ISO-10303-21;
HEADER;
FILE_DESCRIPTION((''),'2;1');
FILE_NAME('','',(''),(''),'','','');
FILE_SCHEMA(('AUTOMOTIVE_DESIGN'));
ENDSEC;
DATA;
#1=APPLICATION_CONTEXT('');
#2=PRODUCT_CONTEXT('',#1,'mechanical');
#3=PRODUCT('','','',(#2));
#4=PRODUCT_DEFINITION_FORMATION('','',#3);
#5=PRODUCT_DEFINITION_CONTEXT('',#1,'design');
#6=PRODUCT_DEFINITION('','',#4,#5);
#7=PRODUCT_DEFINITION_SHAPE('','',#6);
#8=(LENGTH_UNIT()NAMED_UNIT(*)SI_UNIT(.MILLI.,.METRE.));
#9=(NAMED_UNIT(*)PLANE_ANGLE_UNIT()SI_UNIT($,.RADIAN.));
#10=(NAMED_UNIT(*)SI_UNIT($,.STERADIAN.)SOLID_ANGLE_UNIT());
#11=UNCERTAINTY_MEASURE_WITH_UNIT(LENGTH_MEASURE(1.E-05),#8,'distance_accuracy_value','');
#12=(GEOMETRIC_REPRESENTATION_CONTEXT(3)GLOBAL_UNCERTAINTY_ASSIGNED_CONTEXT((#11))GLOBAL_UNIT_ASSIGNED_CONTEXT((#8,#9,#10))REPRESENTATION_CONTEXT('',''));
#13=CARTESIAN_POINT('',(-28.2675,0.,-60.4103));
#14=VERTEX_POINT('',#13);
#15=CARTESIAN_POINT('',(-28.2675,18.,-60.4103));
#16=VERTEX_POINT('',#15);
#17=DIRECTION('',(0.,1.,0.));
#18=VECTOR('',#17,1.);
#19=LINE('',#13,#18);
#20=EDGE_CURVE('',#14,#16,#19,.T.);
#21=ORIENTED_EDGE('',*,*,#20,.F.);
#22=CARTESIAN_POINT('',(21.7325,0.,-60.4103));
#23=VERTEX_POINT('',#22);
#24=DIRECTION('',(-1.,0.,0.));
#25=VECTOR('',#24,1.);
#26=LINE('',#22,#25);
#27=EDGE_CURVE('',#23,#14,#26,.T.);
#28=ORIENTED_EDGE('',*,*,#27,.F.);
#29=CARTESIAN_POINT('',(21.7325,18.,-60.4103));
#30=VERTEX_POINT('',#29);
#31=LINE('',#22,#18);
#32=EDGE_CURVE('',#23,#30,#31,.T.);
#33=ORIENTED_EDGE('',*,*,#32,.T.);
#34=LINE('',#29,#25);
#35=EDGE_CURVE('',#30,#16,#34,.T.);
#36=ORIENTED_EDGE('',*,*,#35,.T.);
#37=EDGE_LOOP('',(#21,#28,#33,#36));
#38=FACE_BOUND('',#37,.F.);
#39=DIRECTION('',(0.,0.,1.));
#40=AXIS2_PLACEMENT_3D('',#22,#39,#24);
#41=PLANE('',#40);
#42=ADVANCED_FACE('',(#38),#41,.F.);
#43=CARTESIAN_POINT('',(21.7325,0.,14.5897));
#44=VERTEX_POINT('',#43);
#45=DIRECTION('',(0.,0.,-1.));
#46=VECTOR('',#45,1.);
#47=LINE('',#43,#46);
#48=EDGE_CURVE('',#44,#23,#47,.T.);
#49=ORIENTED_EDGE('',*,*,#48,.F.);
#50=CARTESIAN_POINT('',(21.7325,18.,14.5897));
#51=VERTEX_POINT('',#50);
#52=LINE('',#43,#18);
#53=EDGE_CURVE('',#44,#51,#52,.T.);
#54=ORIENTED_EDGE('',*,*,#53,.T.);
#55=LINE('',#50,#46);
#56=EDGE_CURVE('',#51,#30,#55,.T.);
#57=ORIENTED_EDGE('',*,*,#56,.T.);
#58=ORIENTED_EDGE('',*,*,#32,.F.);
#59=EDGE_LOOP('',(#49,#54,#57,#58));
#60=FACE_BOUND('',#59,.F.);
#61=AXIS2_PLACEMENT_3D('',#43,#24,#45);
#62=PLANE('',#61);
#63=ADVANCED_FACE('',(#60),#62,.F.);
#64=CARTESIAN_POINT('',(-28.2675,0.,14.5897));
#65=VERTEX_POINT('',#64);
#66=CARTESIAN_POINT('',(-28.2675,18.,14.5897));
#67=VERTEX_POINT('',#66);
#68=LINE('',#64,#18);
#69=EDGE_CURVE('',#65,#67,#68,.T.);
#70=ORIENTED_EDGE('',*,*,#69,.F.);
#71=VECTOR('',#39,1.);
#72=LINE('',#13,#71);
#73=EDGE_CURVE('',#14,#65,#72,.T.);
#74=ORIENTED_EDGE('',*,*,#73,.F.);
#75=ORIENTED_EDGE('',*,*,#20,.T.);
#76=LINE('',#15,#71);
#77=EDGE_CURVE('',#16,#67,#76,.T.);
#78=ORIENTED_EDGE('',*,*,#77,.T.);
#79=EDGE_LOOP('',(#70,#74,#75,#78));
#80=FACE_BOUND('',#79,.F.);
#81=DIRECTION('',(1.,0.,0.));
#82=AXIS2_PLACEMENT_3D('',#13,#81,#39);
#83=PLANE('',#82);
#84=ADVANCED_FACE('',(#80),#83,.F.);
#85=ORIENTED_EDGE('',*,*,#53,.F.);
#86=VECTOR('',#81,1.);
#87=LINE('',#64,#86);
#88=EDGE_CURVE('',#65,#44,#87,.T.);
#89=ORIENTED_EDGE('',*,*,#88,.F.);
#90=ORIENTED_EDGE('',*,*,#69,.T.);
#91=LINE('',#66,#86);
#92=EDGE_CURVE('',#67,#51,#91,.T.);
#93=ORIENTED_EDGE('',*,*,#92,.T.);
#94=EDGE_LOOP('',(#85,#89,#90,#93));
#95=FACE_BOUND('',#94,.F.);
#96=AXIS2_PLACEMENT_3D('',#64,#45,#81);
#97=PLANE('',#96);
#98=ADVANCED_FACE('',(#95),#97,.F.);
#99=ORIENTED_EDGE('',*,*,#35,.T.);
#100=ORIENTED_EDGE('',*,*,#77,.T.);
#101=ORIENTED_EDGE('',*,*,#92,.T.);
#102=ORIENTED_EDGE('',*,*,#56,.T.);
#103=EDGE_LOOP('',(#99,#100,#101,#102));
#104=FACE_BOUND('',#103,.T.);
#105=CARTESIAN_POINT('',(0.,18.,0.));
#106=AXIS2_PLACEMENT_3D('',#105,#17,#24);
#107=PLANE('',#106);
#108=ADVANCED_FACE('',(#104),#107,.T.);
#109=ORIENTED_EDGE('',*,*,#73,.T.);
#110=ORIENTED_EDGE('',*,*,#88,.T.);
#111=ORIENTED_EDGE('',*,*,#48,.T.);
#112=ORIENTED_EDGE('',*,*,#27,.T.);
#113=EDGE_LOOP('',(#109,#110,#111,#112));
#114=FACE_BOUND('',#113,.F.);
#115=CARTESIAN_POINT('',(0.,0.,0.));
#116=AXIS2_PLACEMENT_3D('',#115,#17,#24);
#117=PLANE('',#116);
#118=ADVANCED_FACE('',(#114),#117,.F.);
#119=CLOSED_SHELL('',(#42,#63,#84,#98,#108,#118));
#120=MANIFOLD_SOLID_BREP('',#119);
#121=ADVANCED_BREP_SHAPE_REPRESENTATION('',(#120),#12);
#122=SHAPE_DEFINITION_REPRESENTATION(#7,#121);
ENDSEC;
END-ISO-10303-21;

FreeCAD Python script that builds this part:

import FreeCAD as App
import Part
import Sketcher
Q = App.Units.Quantity


def add_polygon(sketch, points):
    """Adds a closed chain of lines whose ends are joined by coincident constraints."""
    first, n = sketch.GeometryCount, len(points)
    for a, b in zip(points, points[1:] + points[:1]):
        sketch.addGeometry(Part.LineSegment(App.Vector(*a, 0), App.Vector(*b, 0)), False)
    for i in range(n):
        sketch.addConstraint(Sketcher.Constraint("Coincident", first + i, 2, first + (i + 1) % n, 1))

doc = App.newDocument("Part")
body = doc.addObject("PartDesign::Body", "Body")

# Sketch on XZ plane
sketch1 = body.newObject("Sketcher::SketchObject", "Sketch")
sketch1.AttachmentSupport = (doc.getObject("XZ_Plane"), [""])
sketch1.MapMode = "FlatFace"
add_polygon(sketch1, [(-28, -60), (-28, 15), (22, 15), (22, -60)])  # lines 0-3
sketch1.addConstraint([
    Sketcher.Constraint("Vertical", 0),
    Sketcher.Constraint("Horizontal", 1),
    Sketcher.Constraint("Vertical", 2),
    Sketcher.Constraint("Horizontal", 3),
    Sketcher.Constraint("DistanceX", 1, 1, 1, 2, Q("50 mm")),
    Sketcher.Constraint("DistanceY", 0, 1, 0, 2, Q("75 mm")),
    Sketcher.Constraint("DistanceX", 0, 2, -1, 1, Q("28.2675 mm")),
    Sketcher.Constraint("DistanceY", -1, 1, 0, 2, Q("14.5897 mm")),
])
pad1 = body.newObject("PartDesign::Pad", "Pad")
pad1.Profile = sketch1
pad1.Length = 18
pad1.Reversed = True

doc.recompute()
